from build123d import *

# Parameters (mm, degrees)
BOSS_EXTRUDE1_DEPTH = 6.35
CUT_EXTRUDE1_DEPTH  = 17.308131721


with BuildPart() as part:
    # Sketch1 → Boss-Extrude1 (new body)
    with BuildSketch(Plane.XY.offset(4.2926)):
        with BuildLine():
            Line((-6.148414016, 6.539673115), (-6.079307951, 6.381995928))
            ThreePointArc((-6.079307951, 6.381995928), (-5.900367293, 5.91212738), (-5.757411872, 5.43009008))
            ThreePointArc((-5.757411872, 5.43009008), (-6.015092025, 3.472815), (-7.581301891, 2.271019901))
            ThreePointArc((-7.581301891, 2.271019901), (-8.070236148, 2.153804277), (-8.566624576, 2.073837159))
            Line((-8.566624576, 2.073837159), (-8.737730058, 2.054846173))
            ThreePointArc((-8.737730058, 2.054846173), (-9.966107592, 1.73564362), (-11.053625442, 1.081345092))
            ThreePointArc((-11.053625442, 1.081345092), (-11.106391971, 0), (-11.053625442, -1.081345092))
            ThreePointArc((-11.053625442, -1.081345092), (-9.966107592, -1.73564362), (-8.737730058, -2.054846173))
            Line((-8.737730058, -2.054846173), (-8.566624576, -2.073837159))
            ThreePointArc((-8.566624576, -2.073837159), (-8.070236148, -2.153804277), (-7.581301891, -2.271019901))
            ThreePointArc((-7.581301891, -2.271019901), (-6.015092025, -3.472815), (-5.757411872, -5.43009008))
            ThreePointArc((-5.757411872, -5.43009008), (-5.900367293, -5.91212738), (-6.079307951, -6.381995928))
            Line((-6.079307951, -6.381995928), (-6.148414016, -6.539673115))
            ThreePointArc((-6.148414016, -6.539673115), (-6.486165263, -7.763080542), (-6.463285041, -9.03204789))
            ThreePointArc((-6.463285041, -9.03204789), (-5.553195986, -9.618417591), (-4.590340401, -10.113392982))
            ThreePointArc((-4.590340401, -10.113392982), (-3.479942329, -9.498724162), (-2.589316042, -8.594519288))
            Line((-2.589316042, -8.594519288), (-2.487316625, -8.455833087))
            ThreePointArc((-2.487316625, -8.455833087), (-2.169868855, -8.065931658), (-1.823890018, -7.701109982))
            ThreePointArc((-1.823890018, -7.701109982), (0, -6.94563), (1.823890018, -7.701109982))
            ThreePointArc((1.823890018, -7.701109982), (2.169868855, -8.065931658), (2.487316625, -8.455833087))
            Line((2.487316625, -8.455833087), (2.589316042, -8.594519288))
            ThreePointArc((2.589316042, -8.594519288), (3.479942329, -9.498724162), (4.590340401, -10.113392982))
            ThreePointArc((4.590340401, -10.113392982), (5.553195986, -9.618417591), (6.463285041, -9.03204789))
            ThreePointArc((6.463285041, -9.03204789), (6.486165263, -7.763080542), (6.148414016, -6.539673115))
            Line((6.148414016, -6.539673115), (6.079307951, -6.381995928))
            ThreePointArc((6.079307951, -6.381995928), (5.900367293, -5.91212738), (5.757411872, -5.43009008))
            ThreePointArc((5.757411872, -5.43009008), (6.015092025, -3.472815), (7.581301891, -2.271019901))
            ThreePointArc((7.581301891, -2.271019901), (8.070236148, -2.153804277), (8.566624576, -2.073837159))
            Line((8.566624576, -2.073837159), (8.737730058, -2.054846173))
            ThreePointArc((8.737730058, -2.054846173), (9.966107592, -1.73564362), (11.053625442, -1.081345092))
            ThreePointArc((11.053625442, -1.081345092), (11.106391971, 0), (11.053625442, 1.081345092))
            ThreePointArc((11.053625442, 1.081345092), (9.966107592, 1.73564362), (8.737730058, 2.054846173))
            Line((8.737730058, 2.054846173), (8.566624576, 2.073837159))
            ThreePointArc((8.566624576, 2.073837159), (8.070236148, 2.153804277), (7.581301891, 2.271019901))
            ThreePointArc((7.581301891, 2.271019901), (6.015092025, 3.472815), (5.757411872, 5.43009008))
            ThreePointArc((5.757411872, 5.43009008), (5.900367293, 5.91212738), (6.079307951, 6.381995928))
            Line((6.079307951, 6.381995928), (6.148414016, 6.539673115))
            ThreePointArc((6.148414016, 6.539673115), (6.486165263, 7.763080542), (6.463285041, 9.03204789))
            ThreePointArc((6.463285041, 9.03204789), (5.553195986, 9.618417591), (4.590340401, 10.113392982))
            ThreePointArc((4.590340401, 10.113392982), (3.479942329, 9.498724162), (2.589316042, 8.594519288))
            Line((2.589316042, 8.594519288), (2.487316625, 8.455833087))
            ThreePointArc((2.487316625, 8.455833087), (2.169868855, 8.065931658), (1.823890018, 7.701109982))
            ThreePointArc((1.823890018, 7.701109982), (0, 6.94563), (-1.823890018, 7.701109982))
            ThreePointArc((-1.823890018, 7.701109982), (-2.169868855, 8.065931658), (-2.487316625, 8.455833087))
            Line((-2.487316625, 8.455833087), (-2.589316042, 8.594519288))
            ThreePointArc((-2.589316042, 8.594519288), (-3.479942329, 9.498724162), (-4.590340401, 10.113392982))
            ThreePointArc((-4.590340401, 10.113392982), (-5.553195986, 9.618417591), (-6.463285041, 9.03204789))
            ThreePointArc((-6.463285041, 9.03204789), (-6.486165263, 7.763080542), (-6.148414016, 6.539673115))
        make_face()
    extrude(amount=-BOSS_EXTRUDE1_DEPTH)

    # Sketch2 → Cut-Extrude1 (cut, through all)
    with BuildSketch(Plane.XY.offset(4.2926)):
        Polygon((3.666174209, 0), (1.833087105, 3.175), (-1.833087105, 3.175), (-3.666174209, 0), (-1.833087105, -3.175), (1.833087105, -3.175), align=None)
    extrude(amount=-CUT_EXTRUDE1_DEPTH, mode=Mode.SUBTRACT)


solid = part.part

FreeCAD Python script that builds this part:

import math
import FreeCAD as App
import Part
import Sketcher
from FreeCAD import Vector
Q = App.Units.Quantity

doc = App.newDocument("Part")
body = doc.addObject("PartDesign::Body", "Body")

# Sketch on XY plane
sketch1 = doc.addObject("Sketcher::SketchObject", "Sketch")
body.addObject(sketch1)
sketch1.AttachmentSupport = (doc.XY_Plane, [""])
sketch1.MapMode = "FlatFace"
sketch1.AttachmentOffset = App.Placement(Vector(0, 0, 0.169 * 25.4), App.Rotation())
sketch1.addGeometry(Part.LineSegment(Vector(-6.148414, 6.539673, 0), Vector(-6.079308, 6.381996, 0)), False)
sketch1.addGeometry(Part.ArcOfCircle(Part.Circle(Vector(-12.204478, 3.780332, 0), Vector(0, 0, 1), 6.6548), math.radians(14.353575), math.radians(23.013342)), False)
sketch1.addGeometry(Part.ArcOfCircle(Part.Circle(Vector(-8.248892, 4.7625, 0), Vector(0, 0, 1), 2.57937), math.radians(-75), math.radians(15)), False)
sketch1.addGeometry(Part.ArcOfCircle(Part.Circle(Vector(-9.376103, 8.679222, 0), Vector(0, 0, 1), 6.6548), math.radians(-83.013342), math.radians(-74.353575)), False)
sketch1.addGeometry(Part.LineSegment(Vector(-8.566625, 2.073837, 0), Vector(-8.73773, 2.054846, 0)), False)
sketch1.addGeometry(Part.ArcOfCircle(Part.Circle(Vector(-8.248892, -2.3495, 0), Vector(0, 0, 1), 4.431391), math.radians(96.333333), math.radians(129.266175)), False)
sketch1.addGeometry(Part.ArcOfCircle(Part.Circle(Vector(0, 0, 0), Vector(0, 0, 1), 11.106392), math.radians(174.412694), math.radians(185.587306)), False)
sketch1.addGeometry(Part.ArcOfCircle(Part.Circle(Vector(-8.248892, 2.3495, 0), Vector(0, 0, 1), 4.431391), math.radians(-129.266175), math.radians(-96.333333)), False)
sketch1.addGeometry(Part.LineSegment(Vector(-8.73773, -2.054846, 0), Vector(-8.566625, -2.073837, 0)), False)
sketch1.addGeometry(Part.ArcOfCircle(Part.Circle(Vector(-9.376103, -8.679222, 0), Vector(0, 0, 1), 6.6548), math.radians(74.353575), math.radians(83.013342)), False)
sketch1.addGeometry(Part.ArcOfCircle(Part.Circle(Vector(-8.248892, -4.7625, 0), Vector(0, 0, 1), 2.57937), math.radians(-15), math.radians(75)), False)
sketch1.addGeometry(Part.ArcOfCircle(Part.Circle(Vector(-12.204478, -3.780332, 0), Vector(0, 0, 1), 6.6548), math.radians(-23.013342), math.radians(-14.353575)), False)
sketch1.addGeometry(Part.LineSegment(Vector(-6.079308, -6.381996, 0), Vector(-6.148414, -6.539673, 0)), False)
sketch1.addGeometry(Part.ArcOfCircle(Part.Circle(Vector(-2.089719, -8.3185, 0), Vector(0, 0, 1), 4.431391), math.radians(156.333333), math.radians(189.266175)), False)
sketch1.addGeometry(Part.ArcOfCircle(Part.Circle(Vector(0, 0, 0), Vector(0, 0, 1), 11.106392), math.radians(-125.587306), math.radians(-114.412694)), False)
sketch1.addGeometry(Part.ArcOfCircle(Part.Circle(Vector(-6.159173, -5.969, 0), Vector(0, 0, 1), 4.431391), math.radians(-69.266175), math.radians(-36.333333)), False)
sketch1.addGeometry(Part.LineSegment(Vector(-2.589316, -8.594519, 0), Vector(-2.487317, -8.455833, 0)), False)
sketch1.addGeometry(Part.ArcOfCircle(Part.Circle(Vector(2.828376, -12.459554, 0), Vector(0, 0, 1), 6.6548), math.radians(134.353575), math.radians(143.013342)), False)
sketch1.addGeometry(Part.ArcOfCircle(Part.Circle(Vector(0, -9.525, 0), Vector(0, 0, 1), 2.57937), math.radians(45), math.radians(135)), False)
sketch1.addGeometry(Part.ArcOfCircle(Part.Circle(Vector(-2.828376, -12.459554, 0), Vector(0, 0, 1), 6.6548), math.radians(36.986658), math.radians(45.646425)), False)
sketch1.addGeometry(Part.LineSegment(Vector(2.487317, -8.455833, 0), Vector(2.589316, -8.594519, 0)), False)
sketch1.addGeometry(Part.ArcOfCircle(Part.Circle(Vector(6.159173, -5.969, 0), Vector(0, 0, 1), 4.431391), math.radians(-143.666667), math.radians(-110.733825)), False)
sketch1.addGeometry(Part.ArcOfCircle(Part.Circle(Vector(0, 0, 0), Vector(0, 0, 1), 11.106392), math.radians(-65.587306), math.radians(-54.412694)), False)
sketch1.addGeometry(Part.ArcOfCircle(Part.Circle(Vector(2.089719, -8.3185, 0), Vector(0, 0, 1), 4.431391), math.radians(-9.266175), math.radians(23.666667)), False)
sketch1.addGeometry(Part.LineSegment(Vector(6.148414, -6.539673, 0), Vector(6.079308, -6.381996, 0)), False)
sketch1.addGeometry(Part.ArcOfCircle(Part.Circle(Vector(12.204478, -3.780332, 0), Vector(0, 0, 1), 6.6548), math.radians(-165.646425), math.radians(-156.986658)), False)
sketch1.addGeometry(Part.ArcOfCircle(Part.Circle(Vector(8.248892, -4.7625, 0), Vector(0, 0, 1), 2.57937), math.radians(105), math.radians(195)), False)
sketch1.addGeometry(Part.ArcOfCircle(Part.Circle(Vector(9.376103, -8.679222, 0), Vector(0, 0, 1), 6.6548), math.radians(96.986658), math.radians(105.646425)), False)
sketch1.addGeometry(Part.LineSegment(Vector(8.566625, -2.073837, 0), Vector(8.73773, -2.054846, 0)), False)
sketch1.addGeometry(Part.ArcOfCircle(Part.Circle(Vector(8.248892, 2.3495, 0), Vector(0, 0, 1), 4.431391), math.radians(-83.666667), math.radians(-50.733825)), False)
sketch1.addGeometry(Part.ArcOfCircle(Part.Circle(Vector(0, 0, 0), Vector(0, 0, 1), 11.106392), math.radians(-5.587306), math.radians(5.587306)), False)
sketch1.addGeometry(Part.ArcOfCircle(Part.Circle(Vector(8.248892, -2.3495, 0), Vector(0, 0, 1), 4.431391), math.radians(50.733825), math.radians(83.666667)), False)
sketch1.addGeometry(Part.LineSegment(Vector(8.73773, 2.054846, 0), Vector(8.566625, 2.073837, 0)), False)
sketch1.addGeometry(Part.ArcOfCircle(Part.Circle(Vector(9.376103, 8.679222, 0), Vector(0, 0, 1), 6.6548), math.radians(-105.646425), math.radians(-96.986658)), False)
sketch1.addGeometry(Part.ArcOfCircle(Part.Circle(Vector(8.248892, 4.7625, 0), Vector(0, 0, 1), 2.57937), math.radians(165), math.radians(255)), False)
sketch1.addGeometry(Part.ArcOfCircle(Part.Circle(Vector(12.204478, 3.780332, 0), Vector(0, 0, 1), 6.6548), math.radians(156.986658), math.radians(165.646425)), False)
sketch1.addGeometry(Part.LineSegment(Vector(6.079308, 6.381996, 0), Vector(6.148414, 6.539673, 0)), False)
sketch1.addGeometry(Part.ArcOfCircle(Part.Circle(Vector(2.089719, 8.3185, 0), Vector(0, 0, 1), 4.431391), math.radians(-23.666667), math.radians(9.266175)), False)
sketch1.addGeometry(Part.ArcOfCircle(Part.Circle(Vector(0, 0, 0), Vector(0, 0, 1), 11.106392), math.radians(54.412694), math.radians(65.587306)), False)
sketch1.addGeometry(Part.ArcOfCircle(Part.Circle(Vector(6.159173, 5.969, 0), Vector(0, 0, 1), 4.431391), math.radians(110.733825), math.radians(143.666667)), False)
sketch1.addGeometry(Part.LineSegment(Vector(2.589316, 8.594519, 0), Vector(2.487317, 8.455833, 0)), False)
sketch1.addGeometry(Part.ArcOfCircle(Part.Circle(Vector(-2.828376, 12.459554, 0), Vector(0, 0, 1), 6.6548), math.radians(-45.646425), math.radians(-36.986658)), False)
sketch1.addGeometry(Part.ArcOfCircle(Part.Circle(Vector(0, 9.525, 0), Vector(0, 0, 1), 2.57937), math.radians(-135), math.radians(-45)), False)
sketch1.addGeometry(Part.ArcOfCircle(Part.Circle(Vector(2.828376, 12.459554, 0), Vector(0, 0, 1), 6.6548), math.radians(-143.013342), math.radians(-134.353575)), False)
sketch1.addGeometry(Part.LineSegment(Vector(-2.487317, 8.455833, 0), Vector(-2.589316, 8.594519, 0)), False)
sketch1.addGeometry(Part.ArcOfCircle(Part.Circle(Vector(-6.159173, 5.969, 0), Vector(0, 0, 1), 4.431391), math.radians(36.333333), math.radians(69.266175)), False)
sketch1.addGeometry(Part.ArcOfCircle(Part.Circle(Vector(0, 0, 0), Vector(0, 0, 1), 11.106392), math.radians(114.412694), math.radians(125.587306)), False)
sketch1.addGeometry(Part.ArcOfCircle(Part.Circle(Vector(-2.089719, 8.3185, 0), Vector(0, 0, 1), 4.431391), math.radians(170.733825), math.radians(203.666667)), False)
sketch1.addConstraint(Sketcher.Constraint("Coincident", 0, 2, 1, 2))
sketch1.addConstraint(Sketcher.Constraint("Coincident", 1, 1, 2, 2))
sketch1.addConstraint(Sketcher.Constraint("Coincident", 2, 1, 3, 2))
sketch1.addConstraint(Sketcher.Constraint("Coincident", 3, 1, 4, 1))
sketch1.addConstraint(Sketcher.Constraint("Coincident", 4, 2, 5, 1))
sketch1.addConstraint(Sketcher.Constraint("Coincident", 5, 2, 6, 1))
sketch1.addConstraint(Sketcher.Constraint("Coincident", 6, 2, 7, 1))
sketch1.addConstraint(Sketcher.Constraint("Coincident", 7, 2, 8, 1))
sketch1.addConstraint(Sketcher.Constraint("Coincident", 8, 2, 9, 2))
sketch1.addConstraint(Sketcher.Constraint("Coincident", 9, 1, 10, 2))
sketch1.addConstraint(Sketcher.Constraint("Coincident", 10, 1, 11, 2))
sketch1.addConstraint(Sketcher.Constraint("Coincident", 11, 1, 12, 1))
sketch1.addConstraint(Sketcher.Constraint("Coincident", 12, 2, 13, 1))
sketch1.addConstraint(Sketcher.Constraint("Coincident", 13, 2, 14, 1))
sketch1.addConstraint(Sketcher.Constraint("Coincident", 14, 2, 15, 1))
sketch1.addConstraint(Sketcher.Constraint("Coincident", 15, 2, 16, 1))
sketch1.addConstraint(Sketcher.Constraint("Coincident", 16, 2, 17, 2))
sketch1.addConstraint(Sketcher.Constraint("Coincident", 17, 1, 18, 2))
sketch1.addConstraint(Sketcher.Constraint("Coincident", 18, 1, 19, 2))
sketch1.addConstraint(Sketcher.Constraint("Coincident", 19, 1, 20, 1))
sketch1.addConstraint(Sketcher.Constraint("Coincident", 20, 2, 21, 1))
sketch1.addConstraint(Sketcher.Constraint("Coincident", 21, 2, 22, 1))
sketch1.addConstraint(Sketcher.Constraint("Coincident", 22, 2, 23, 1))
sketch1.addConstraint(Sketcher.Constraint("Coincident", 23, 2, 24, 1))
sketch1.addConstraint(Sketcher.Constraint("Coincident", 24, 2, 25, 2))
sketch1.addConstraint(Sketcher.Constraint("Coincident", 25, 1, 26, 2))
sketch1.addConstraint(Sketcher.Constraint("Coincident", 26, 1, 27, 2))
sketch1.addConstraint(Sketcher.Constraint("Coincident", 27, 1, 28, 1))
sketch1.addConstraint(Sketcher.Constraint("Coincident", 28, 2, 29, 1))
sketch1.addConstraint(Sketcher.Constraint("Coincident", 29, 2, 30, 1))
sketch1.addConstraint(Sketcher.Constraint("Coincident", 30, 2, 31, 1))
sketch1.addConstraint(Sketcher.Constraint("Coincident", 31, 2, 32, 1))
sketch1.addConstraint(Sketcher.Constraint("Coincident", 32, 2, 33, 2))
sketch1.addConstraint(Sketcher.Constraint("Coincident", 33, 1, 34, 2))
sketch1.addConstraint(Sketcher.Constraint("Coincident", 34, 1, 35, 2))
sketch1.addConstraint(Sketcher.Constraint("Coincident", 35, 1, 36, 1))
sketch1.addConstraint(Sketcher.Constraint("Coincident", 36, 2, 37, 1))
sketch1.addConstraint(Sketcher.Constraint("Coincident", 37, 2, 38, 1))
sketch1.addConstraint(Sketcher.Constraint("Coincident", 38, 2, 39, 1))
sketch1.addConstraint(Sketcher.Constraint("Coincident", 39, 2, 40, 1))
sketch1.addConstraint(Sketcher.Constraint("Coincident", 40, 2, 41, 2))
sketch1.addConstraint(Sketcher.Constraint("Coincident", 41, 1, 42, 2))
sketch1.addConstraint(Sketcher.Constraint("Coincident", 42, 1, 43, 2))
sketch1.addConstraint(Sketcher.Constraint("Coincident", 43, 1, 44, 1))
sketch1.addConstraint(Sketcher.Constraint("Coincident", 44, 2, 45, 1))
sketch1.addConstraint(Sketcher.Constraint("Coincident", 45, 2, 46, 1))
sketch1.addConstraint(Sketcher.Constraint("Coincident", 46, 2, 47, 1))
sketch1.addConstraint(Sketcher.Constraint("Coincident", 47, 2, 0, 1))
sketch1.addConstraint(Sketcher.Constraint("Coincident", 6, 3, -1, 1))
sketch1.addConstraint(Sketcher.Constraint("Coincident", 14, 3, -1, 1))
sketch1.addConstraint(Sketcher.Constraint("Coincident", 22, 3, -1, 1))
sketch1.addConstraint(Sketcher.Constraint("Coincident", 30, 3, -1, 1))
sketch1.addConstraint(Sketcher.Constraint("Coincident", 38, 3, -1, 1))
sketch1.addConstraint(Sketcher.Constraint("Coincident", 46, 3, -1, 1))
sketch1.addConstraint(Sketcher.Constraint("PointOnObject", 18, 3, -2))
sketch1.addConstraint(Sketcher.Constraint("PointOnObject", 42, 3, -2))
sketch1.addConstraint(Sketcher.Constraint("Radius", 1, Q("0.262 in")))
sketch1.addConstraint(Sketcher.Constraint("Radius", 3, Q("0.262 in")))
sketch1.addConstraint(Sketcher.Constraint("Radius", 9, Q("0.262 in")))
sketch1.addConstraint(Sketcher.Constraint("Radius", 11, Q("0.262 in")))
sketch1.addConstraint(Sketcher.Constraint("Radius", 17, Q("0.262 in")))
sketch1.addConstraint(Sketcher.Constraint("Radius", 19, Q("0.262 in")))
sketch1.addConstraint(Sketcher.Constraint("Radius", 25, Q("0.262 in")))
sketch1.addConstraint(Sketcher.Constraint("Radius", 27, Q("0.262 in")))
sketch1.addConstraint(Sketcher.Constraint("Radius", 33, Q("0.262 in")))
sketch1.addConstraint(Sketcher.Constraint("Radius", 35, Q("0.262 in")))
sketch1.addConstraint(Sketcher.Constraint("Radius", 41, Q("0.262 in")))
sketch1.addConstraint(Sketcher.Constraint("Radius", 43, Q("0.262 in")))
sketch1.addConstraint(Sketcher.Constraint("DistanceY", -1, 1, 2, 3, Q("0.1875 in")))
sketch1.addConstraint(Sketcher.Constraint("DistanceY", 10, 3, -1, 1, Q("0.1875 in")))
sketch1.addConstraint(Sketcher.Constraint("DistanceY", 15, 3, -1, 1, Q("0.235 in")))
sketch1.addConstraint(Sketcher.Constraint("DistanceY", 18, 3, -1, 1, Q("0.375 in")))
sketch1.addConstraint(Sketcher.Constraint("DistanceY", 21, 3, -1, 1, Q("0.235 in")))
sketch1.addConstraint(Sketcher.Constraint("DistanceY", 26, 3, -1, 1, Q("0.1875 in")))
sketch1.addConstraint(Sketcher.Constraint("DistanceY", -1, 1, 34, 3, Q("0.1875 in")))
sketch1.addConstraint(Sketcher.Constraint("DistanceY", -1, 1, 39, 3, Q("0.235 in")))
sketch1.addConstraint(Sketcher.Constraint("DistanceY", -1, 1, 42, 3, Q("0.375 in")))
sketch1.addConstraint(Sketcher.Constraint("DistanceY", -1, 1, 45, 3, Q("0.235 in")))
sketch1.addConstraint(Sketcher.Constraint("Radius", 2, 2.57937))
sketch1.addConstraint(Sketcher.Constraint("Radius", 5, 4.431391))
sketch1.addConstraint(Sketcher.Constraint("Radius", 7, 4.431391))
sketch1.addConstraint(Sketcher.Constraint("Radius", 10, 2.57937))
sketch1.addConstraint(Sketcher.Constraint("Radius", 13, 4.431391))
sketch1.addConstraint(Sketcher.Constraint("Radius", 14, 11.106392))
sketch1.addConstraint(Sketcher.Constraint("Radius", 15, 4.431391))
sketch1.addConstraint(Sketcher.Constraint("Radius", 18, 2.57937))
sketch1.addConstraint(Sketcher.Constraint("Radius", 21, 4.431391))
sketch1.addConstraint(Sketcher.Constraint("Radius", 22, 11.106392))
sketch1.addConstraint(Sketcher.Constraint("Radius", 23, 4.431391))
sketch1.addConstraint(Sketcher.Constraint("Radius", 26, 2.57937))
sketch1.addConstraint(Sketcher.Constraint("Radius", 29, 4.431391))
sketch1.addConstraint(Sketcher.Constraint("Radius", 31, 4.431391))
sketch1.addConstraint(Sketcher.Constraint("Radius", 34, 2.57937))
sketch1.addConstraint(Sketcher.Constraint("Radius", 37, 4.431391))
sketch1.addConstraint(Sketcher.Constraint("Radius", 38, 11.106392))
sketch1.addConstraint(Sketcher.Constraint("Radius", 39, 4.431391))
sketch1.addConstraint(Sketcher.Constraint("Radius", 42, 2.57937))
sketch1.addConstraint(Sketcher.Constraint("Radius", 45, 4.431391))
sketch1.addConstraint(Sketcher.Constraint("Radius", 46, 11.106392))
sketch1.addConstraint(Sketcher.Constraint("Radius", 47, 4.431391))
sketch1.addConstraint(Sketcher.Constraint("DistanceY", 5, 3, -1, 1, Q("0.0925 in")))
sketch1.addConstraint(Sketcher.Constraint("DistanceY", -1, 1, 7, 3, Q("0.0925 in")))
sketch1.addConstraint(Sketcher.Constraint("DistanceY", 13, 3, -1, 1, Q("0.3275 in")))
sketch1.addConstraint(Sketcher.Constraint("DistanceY", 23, 3, -1, 1, Q("0.3275 in")))
sketch1.addConstraint(Sketcher.Constraint("DistanceY", -1, 1, 29, 3, Q("0.0925 in")))
sketch1.addConstraint(Sketcher.Constraint("DistanceY", 31, 3, -1, 1, Q("0.0925 in")))
sketch1.addConstraint(Sketcher.Constraint("DistanceY", -1, 1, 37, 3, Q("0.3275 in")))
sketch1.addConstraint(Sketcher.Constraint("DistanceY", -1, 1, 47, 3, Q("0.3275 in")))
sketch1.addConstraint(Sketcher.Constraint("Radius", 6, 11.106392))
sketch1.addConstraint(Sketcher.Constraint("Radius", 30, 11.106392))
sketch1.addConstraint(Sketcher.Constraint("DistanceX", 2, 1, -1, 1, 7.581302))
sketch1.addConstraint(Sketcher.Constraint("DistanceX", 9, 1, -1, 1, 7.581302))
sketch1.addConstraint(Sketcher.Constraint("DistanceX", -1, 1, 26, 1, 7.581302))
sketch1.addConstraint(Sketcher.Constraint("DistanceX", -1, 1, 33, 1, 7.581302))
sketch1.addConstraint(Sketcher.Constraint("DistanceX", 1, 3, -1, 1, 12.204478))
sketch1.addConstraint(Sketcher.Constraint("DistanceY", -1, 1, 1, 3, 3.780332))
sketch1.addConstraint(Sketcher.Constraint("DistanceX", 2, 3, -1, 1, 8.248892))
sketch1.addConstraint(Sketcher.Constraint("DistanceY", -1, 1, 3, 3, 8.679222))
sketch1.addConstraint(Sketcher.Constraint("DistanceX", 5, 3, -1, 1, 8.248892))
sketch1.addConstraint(Sketcher.Constraint("DistanceX", 7, 3, -1, 1, 8.248892))
sketch1.addConstraint(Sketcher.Constraint("DistanceY", 9, 3, -1, 1, 8.679222))
sketch1.addConstraint(Sketcher.Constraint("DistanceX", 10, 3, -1, 1, 8.248892))
sketch1.addConstraint(Sketcher.Constraint("DistanceX", 11, 3, -1, 1, 12.204478))
sketch1.addConstraint(Sketcher.Constraint("DistanceY", 11, 3, -1, 1, 3.780332))
sketch1.addConstraint(Sketcher.Constraint("DistanceX", 13, 3, -1, 1, 2.089719))
sketch1.addConstraint(Sketcher.Constraint("DistanceX", -1, 1, 23, 3, 2.089719))
sketch1.addConstraint(Sketcher.Constraint("DistanceX", -1, 1, 25, 3, 12.204478))
sketch1.addConstraint(Sketcher.Constraint("DistanceY", 25, 3, -1, 1, 3.780332))
sketch1.addConstraint(Sketcher.Constraint("DistanceX", -1, 1, 26, 3, 8.248892))
sketch1.addConstraint(Sketcher.Constraint("DistanceY", 27, 3, -1, 1, 8.679222))
sketch1.addConstraint(Sketcher.Constraint("DistanceX", -1, 1, 29, 3, 8.248892))
sketch1.addConstraint(Sketcher.Constraint("DistanceX", -1, 1, 31, 3, 8.248892))
sketch1.addConstraint(Sketcher.Constraint("DistanceY", -1, 1, 33, 3, 8.679222))
sketch1.addConstraint(Sketcher.Constraint("DistanceX", -1, 1, 34, 3, 8.248892))
sketch1.addConstraint(Sketcher.Constraint("DistanceX", -1, 1, 35, 3, 12.204478))
sketch1.addConstraint(Sketcher.Constraint("DistanceY", -1, 1, 35, 3, 3.780332))
sketch1.addConstraint(Sketcher.Constraint("DistanceX", -1, 1, 37, 3, 2.089719))
sketch1.addConstraint(Sketcher.Constraint("DistanceX", 47, 3, -1, 1, 2.089719))
sketch1.addConstraint(Sketcher.Constraint("DistanceX", 4, 2, -1, 1, 8.73773))
sketch1.addConstraint(Sketcher.Constraint("DistanceX", 7, 2, -1, 1, 8.73773))
sketch1.addConstraint(Sketcher.Constraint("DistanceX", 14, 2, -1, 1, 4.59034))
sketch1.addConstraint(Sketcher.Constraint("DistanceY", 15, 2, -1, 1, 8.594519))
sketch1.addConstraint(Sketcher.Constraint("DistanceX", 17, 1, -1, 1, 1.82389))
sketch1.addConstraint(Sketcher.Constraint("DistanceX", -1, 1, 18, 1, 1.82389))
sketch1.addConstraint(Sketcher.Constraint("DistanceY", 20, 2, -1, 1, 8.594519))
sketch1.addConstraint(Sketcher.Constraint("DistanceX", -1, 1, 21, 2, 4.59034))
sketch1.addConstraint(Sketcher.Constraint("DistanceX", -1, 1, 28, 2, 8.73773))
sketch1.addConstraint(Sketcher.Constraint("DistanceX", -1, 1, 31, 2, 8.73773))
sketch1.addConstraint(Sketcher.Constraint("DistanceX", -1, 1, 38, 2, 4.59034))
sketch1.addConstraint(Sketcher.Constraint("DistanceY", -1, 1, 39, 2, 8.594519))
sketch1.addConstraint(Sketcher.Constraint("DistanceX", -1, 1, 41, 1, 1.82389))
sketch1.addConstraint(Sketcher.Constraint("DistanceX", 42, 1, -1, 1, 1.82389))
sketch1.addConstraint(Sketcher.Constraint("DistanceY", -1, 1, 44, 2, 8.594519))
sketch1.addConstraint(Sketcher.Constraint("DistanceX", 45, 2, -1, 1, 4.59034))
sketch1.addConstraint(Sketcher.Constraint("Distance", 0, 0.172156))
sketch1.addConstraint(Sketcher.Constraint("Distance", 4, 0.172156))
sketch1.addConstraint(Sketcher.Constraint("Distance", 8, 0.172156))
sketch1.addConstraint(Sketcher.Constraint("Distance", 12, 0.172156))
sketch1.addConstraint(Sketcher.Constraint("Distance", 16, 0.172156))
sketch1.addConstraint(Sketcher.Constraint("Distance", 20, 0.172156))
sketch1.addConstraint(Sketcher.Constraint("Distance", 24, 0.172156))
sketch1.addConstraint(Sketcher.Constraint("Distance", 28, 0.172156))
sketch1.addConstraint(Sketcher.Constraint("Distance", 32, 0.172156))
sketch1.addConstraint(Sketcher.Constraint("Distance", 36, 0.172156))
sketch1.addConstraint(Sketcher.Constraint("Distance", 40, 0.172156))
sketch1.addConstraint(Sketcher.Constraint("Distance", 44, 0.172156))
sketch1.addConstraint(Sketcher.Constraint("DistanceX", -1, 1, 17, 3, 2.828376))
sketch1.addConstraint(Sketcher.Constraint("DistanceX", 19, 3, -1, 1, 2.828376))
sketch1.addConstraint(Sketcher.Constraint("DistanceX", 41, 3, -1, 1, 2.828376))
sketch1.addConstraint(Sketcher.Constraint("DistanceX", -1, 1, 43, 3, 2.828376))
sketch1.addConstraint(Sketcher.Constraint("DistanceX", 0, 2, -1, 1, 6.079308))
sketch1.addConstraint(Sketcher.Constraint("DistanceX", 11, 1, -1, 1, 6.079308))
sketch1.addConstraint(Sketcher.Constraint("DistanceX", -1, 1, 23, 2, 6.148414))
sketch1.addConstraint(Sketcher.Constraint("DistanceX", -1, 1, 35, 1, 6.079308))
pad1 = doc.addObject("PartDesign::Pad", "Pad")
body.addObject(pad1)
pad1.Profile = sketch1
pad1.Length = Q("0.25 in")
pad1.Reversed = True

# Sketch on XY plane
sketch2 = doc.addObject("Sketcher::SketchObject", "Sketch001")
body.addObject(sketch2)
sketch2.AttachmentSupport = (doc.XY_Plane, [""])
sketch2.MapMode = "FlatFace"
sketch2.AttachmentOffset = App.Placement(Vector(0, 0, 0.169 * 25.4), App.Rotation())
sketch2.addGeometry(Part.LineSegment(Vector(3.7, 0, 0), Vector(1.8, 3.2, 0)), False)
sketch2.addGeometry(Part.LineSegment(Vector(1.8, 3.2, 0), Vector(-1.8, 3.2, 0)), False)
sketch2.addGeometry(Part.LineSegment(Vector(-1.8, 3.2, 0), Vector(-3.7, 0, 0)), False)
sketch2.addGeometry(Part.LineSegment(Vector(-3.7, 0, 0), Vector(-1.8, -3.2, 0)), False)
sketch2.addGeometry(Part.LineSegment(Vector(-1.8, -3.2, 0), Vector(1.8, -3.2, 0)), False)
sketch2.addGeometry(Part.LineSegment(Vector(1.8, -3.2, 0), Vector(3.7, 0, 0)), False)
sketch2.addConstraint(Sketcher.Constraint("Coincident", 0, 2, 1, 1))
sketch2.addConstraint(Sketcher.Constraint("Coincident", 1, 2, 2, 1))
sketch2.addConstraint(Sketcher.Constraint("Coincident", 2, 2, 3, 1))
sketch2.addConstraint(Sketcher.Constraint("Coincident", 3, 2, 4, 1))
sketch2.addConstraint(Sketcher.Constraint("Coincident", 4, 2, 5, 1))
sketch2.addConstraint(Sketcher.Constraint("Coincident", 5, 2, 0, 1))
sketch2.addConstraint(Sketcher.Constraint("Horizontal", 1))
sketch2.addConstraint(Sketcher.Constraint("Horizontal", 4))
sketch2.addConstraint(Sketcher.Constraint("Symmetric", 0, 2, 3, 2, -1, 1))
sketch2.addConstraint(Sketcher.Constraint("Symmetric", 2, 2, 5, 2, -1, 1))
sketch2.addConstraint(Sketcher.Constraint("PointOnObject", 2, 2, -1))
sketch2.addConstraint(Sketcher.Constraint("Parallel", 2, 5))
sketch2.addConstraint(Sketcher.Constraint("Vertical", 1, 2, 3, 2))
sketch2.addConstraint(Sketcher.Constraint("Angle", 0, Q("120 deg")))
sketch2.addConstraint(Sketcher.Constraint("DistanceY", 3, 2, 1, 2, Q("0.25 in")))
sketch2.addConstraint(Sketcher.Constraint("DistanceX", 1, 2, 1, 1, 3.666174))
pocket1 = doc.addObject("PartDesign::Pocket", "Pocket")
body.addObject(pocket1)
pocket1.Profile = sketch2
pocket1.Type = "ThroughAll"

doc.recompute()
